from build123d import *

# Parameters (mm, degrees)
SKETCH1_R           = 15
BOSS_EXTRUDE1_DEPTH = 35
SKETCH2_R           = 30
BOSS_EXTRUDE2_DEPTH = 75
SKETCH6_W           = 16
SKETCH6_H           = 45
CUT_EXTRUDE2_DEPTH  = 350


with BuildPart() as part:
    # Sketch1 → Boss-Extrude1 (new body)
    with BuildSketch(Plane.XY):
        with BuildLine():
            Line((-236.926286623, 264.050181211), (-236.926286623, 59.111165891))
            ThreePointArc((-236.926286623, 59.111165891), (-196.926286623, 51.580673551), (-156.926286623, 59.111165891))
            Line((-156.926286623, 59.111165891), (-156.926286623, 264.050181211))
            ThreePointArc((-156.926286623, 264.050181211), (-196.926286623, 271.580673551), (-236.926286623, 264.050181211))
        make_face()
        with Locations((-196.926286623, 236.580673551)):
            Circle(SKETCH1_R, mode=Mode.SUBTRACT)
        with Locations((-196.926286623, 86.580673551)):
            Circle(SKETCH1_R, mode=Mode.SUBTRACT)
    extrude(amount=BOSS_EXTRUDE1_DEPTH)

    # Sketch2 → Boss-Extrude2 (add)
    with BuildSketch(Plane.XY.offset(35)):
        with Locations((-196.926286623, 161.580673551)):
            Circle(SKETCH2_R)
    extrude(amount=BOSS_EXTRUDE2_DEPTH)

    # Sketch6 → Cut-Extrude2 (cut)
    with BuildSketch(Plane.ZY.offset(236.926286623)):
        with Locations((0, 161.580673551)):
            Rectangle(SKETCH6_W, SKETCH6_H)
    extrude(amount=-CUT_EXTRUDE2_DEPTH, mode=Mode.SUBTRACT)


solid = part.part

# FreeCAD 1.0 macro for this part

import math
import FreeCAD as App
import Part
import Sketcher

V = App.Vector
Q = App.Units.Quantity

doc = App.newDocument("Part")
body = doc.addObject("PartDesign::Body", "Body")

# Sketch on XY plane
sketch1 = body.newObject("Sketcher::SketchObject", "Sketch")
sketch1.AttachmentSupport = (doc.getObject("XY_Plane"), [""])
sketch1.MapMode = "FlatFace"
sketch1.addGeometry(Part.LineSegment(V(-236.926287, 264.050181, 0), V(-236.926287, 59.111166, 0)), False)
sketch1.addGeometry(Part.ArcOfCircle(Part.Circle(V(-196.926287, 161.580674, 0), V(0, 0, 1), 110), math.radians(-111.323686), math.radians(-68.676314)), False)
sketch1.addGeometry(Part.LineSegment(V(-156.926287, 59.111166, 0), V(-156.926287, 264.050181, 0)), False)
sketch1.addGeometry(Part.ArcOfCircle(Part.Circle(V(-196.926287, 161.580674, 0), V(0, 0, 1), 110), math.radians(68.676314), math.radians(111.323686)), False)
sketch1.addGeometry(Part.Circle(V(-196.926287, 86.580674, 0), V(0, 0, 1), 15), False)
sketch1.addGeometry(Part.Circle(V(-196.926287, 236.580674, 0), V(0, 0, 1), 15), False)
sketch1.addConstraint(Sketcher.Constraint("Coincident", 0, 2, 1, 1))
sketch1.addConstraint(Sketcher.Constraint("Coincident", 1, 2, 2, 1))
sketch1.addConstraint(Sketcher.Constraint("Coincident", 2, 2, 3, 1))
sketch1.addConstraint(Sketcher.Constraint("Coincident", 3, 2, 0, 1))
sketch1.addConstraint(Sketcher.Constraint("Vertical", 0))
sketch1.addConstraint(Sketcher.Constraint("Vertical", 2))
sketch1.addConstraint(Sketcher.Constraint("Coincident", 3, 3, 1, 3))
sketch1.addConstraint(Sketcher.Constraint("Equal", 1, 3))
sketch1.addConstraint(Sketcher.Constraint("Equal", 4, 5))
sketch1.addConstraint(Sketcher.Constraint("Horizontal", 0, 2, 1, 2))
sketch1.addConstraint(Sketcher.Constraint("Vertical", 3, 3, 4, 3))
sketch1.addConstraint(Sketcher.Constraint("Vertical", 4, 3, 5, 3))
sketch1.addConstraint(Sketcher.Constraint("Diameter", 4, Q("30 mm")))
sketch1.addConstraint(Sketcher.Constraint("Radius", 1, Q("110 mm")))
sketch1.addConstraint(Sketcher.Constraint("DistanceY", 4, 3, 3, 3, Q("75 mm")))
sketch1.addConstraint(Sketcher.Constraint("DistanceY", 1, 3, 5, 3, Q("75 mm")))
sketch1.addConstraint(Sketcher.Constraint("DistanceX", 0, 2, 4, 3, Q("40 mm")))
sketch1.addConstraint(Sketcher.Constraint("DistanceY", -1, 1, 2, 2, Q("264.050181 mm")))
sketch1.addConstraint(Sketcher.Constraint("DistanceX", 1, 3, -1, 1, Q("196.926287 mm")))
pad1 = body.newObject("PartDesign::Pad", "Pad")
pad1.Profile = sketch1
pad1.Length = 35

# Sketch on XY plane
sketch2 = body.newObject("Sketcher::SketchObject", "Sketch001")
sketch2.AttachmentSupport = (doc.getObject("XY_Plane"), [""])
sketch2.MapMode = "FlatFace"
sketch2.AttachmentOffset = App.Placement(V(0, 0, 35), App.Rotation())
sketch2.addGeometry(Part.Circle(V(-196.926287, 161.580674, 0), V(0, 0, 1), 30), False)
sketch2.addConstraint(Sketcher.Constraint("Diameter", 0, Q("60 mm")))
sketch2.addConstraint(Sketcher.Constraint("DistanceX", 0, 3, -1, 1, Q("196.926287 mm")))
sketch2.addConstraint(Sketcher.Constraint("DistanceY", -1, 1, 0, 3, Q("161.580674 mm")))
pad2 = body.newObject("PartDesign::Pad", "Pad001")
pad2.Profile = sketch2
pad2.Length = 75

# Sketch on YZ plane
sketch3 = body.newObject("Sketcher::SketchObject", "Sketch002")
sketch3.AttachmentSupport = (doc.getObject("YZ_Plane"), [""])
sketch3.MapMode = "FlatFace"
sketch3.AttachmentOffset = App.Placement(V(0, 0, -236.926287), App.Rotation())
sketch3.addGeometry(Part.LineSegment(V(184.080674, -8, 0), V(139.080674, -8, 0)), False)
sketch3.addGeometry(Part.LineSegment(V(139.080674, -8, 0), V(139.080674, 8, 0)), False)
sketch3.addGeometry(Part.LineSegment(V(139.080674, 8, 0), V(184.080674, 8, 0)), False)
sketch3.addGeometry(Part.LineSegment(V(184.080674, 8, 0), V(184.080674, -8, 0)), False)
sketch3.addConstraint(Sketcher.Constraint("Coincident", 0, 2, 1, 1))
sketch3.addConstraint(Sketcher.Constraint("Coincident", 1, 2, 2, 1))
sketch3.addConstraint(Sketcher.Constraint("Coincident", 2, 2, 3, 1))
sketch3.addConstraint(Sketcher.Constraint("Coincident", 3, 2, 0, 1))
sketch3.addConstraint(Sketcher.Constraint("Horizontal", 0))
sketch3.addConstraint(Sketcher.Constraint("Vertical", 1))
sketch3.addConstraint(Sketcher.Constraint("Horizontal", 2))
sketch3.addConstraint(Sketcher.Constraint("Vertical", 3))
sketch3.addConstraint(Sketcher.Constraint("DistanceX", 0, 2, 0, 1, Q("45 mm")))
sketch3.addConstraint(Sketcher.Constraint("DistanceY", 1, 1, 1, 2, Q("16 mm")))
sketch3.addConstraint(Sketcher.Constraint("DistanceY", 0, 2, -1, 1, Q("8 mm")))
sketch3.addConstraint(Sketcher.Constraint("DistanceX", -1, 1, 0, 2, Q("139.080674 mm")))
pocket1 = body.newObject("PartDesign::Pocket", "Pocket")
pocket1.Profile = sketch3
pocket1.Length = 350
pocket1.Reversed = True

doc.recompute()
